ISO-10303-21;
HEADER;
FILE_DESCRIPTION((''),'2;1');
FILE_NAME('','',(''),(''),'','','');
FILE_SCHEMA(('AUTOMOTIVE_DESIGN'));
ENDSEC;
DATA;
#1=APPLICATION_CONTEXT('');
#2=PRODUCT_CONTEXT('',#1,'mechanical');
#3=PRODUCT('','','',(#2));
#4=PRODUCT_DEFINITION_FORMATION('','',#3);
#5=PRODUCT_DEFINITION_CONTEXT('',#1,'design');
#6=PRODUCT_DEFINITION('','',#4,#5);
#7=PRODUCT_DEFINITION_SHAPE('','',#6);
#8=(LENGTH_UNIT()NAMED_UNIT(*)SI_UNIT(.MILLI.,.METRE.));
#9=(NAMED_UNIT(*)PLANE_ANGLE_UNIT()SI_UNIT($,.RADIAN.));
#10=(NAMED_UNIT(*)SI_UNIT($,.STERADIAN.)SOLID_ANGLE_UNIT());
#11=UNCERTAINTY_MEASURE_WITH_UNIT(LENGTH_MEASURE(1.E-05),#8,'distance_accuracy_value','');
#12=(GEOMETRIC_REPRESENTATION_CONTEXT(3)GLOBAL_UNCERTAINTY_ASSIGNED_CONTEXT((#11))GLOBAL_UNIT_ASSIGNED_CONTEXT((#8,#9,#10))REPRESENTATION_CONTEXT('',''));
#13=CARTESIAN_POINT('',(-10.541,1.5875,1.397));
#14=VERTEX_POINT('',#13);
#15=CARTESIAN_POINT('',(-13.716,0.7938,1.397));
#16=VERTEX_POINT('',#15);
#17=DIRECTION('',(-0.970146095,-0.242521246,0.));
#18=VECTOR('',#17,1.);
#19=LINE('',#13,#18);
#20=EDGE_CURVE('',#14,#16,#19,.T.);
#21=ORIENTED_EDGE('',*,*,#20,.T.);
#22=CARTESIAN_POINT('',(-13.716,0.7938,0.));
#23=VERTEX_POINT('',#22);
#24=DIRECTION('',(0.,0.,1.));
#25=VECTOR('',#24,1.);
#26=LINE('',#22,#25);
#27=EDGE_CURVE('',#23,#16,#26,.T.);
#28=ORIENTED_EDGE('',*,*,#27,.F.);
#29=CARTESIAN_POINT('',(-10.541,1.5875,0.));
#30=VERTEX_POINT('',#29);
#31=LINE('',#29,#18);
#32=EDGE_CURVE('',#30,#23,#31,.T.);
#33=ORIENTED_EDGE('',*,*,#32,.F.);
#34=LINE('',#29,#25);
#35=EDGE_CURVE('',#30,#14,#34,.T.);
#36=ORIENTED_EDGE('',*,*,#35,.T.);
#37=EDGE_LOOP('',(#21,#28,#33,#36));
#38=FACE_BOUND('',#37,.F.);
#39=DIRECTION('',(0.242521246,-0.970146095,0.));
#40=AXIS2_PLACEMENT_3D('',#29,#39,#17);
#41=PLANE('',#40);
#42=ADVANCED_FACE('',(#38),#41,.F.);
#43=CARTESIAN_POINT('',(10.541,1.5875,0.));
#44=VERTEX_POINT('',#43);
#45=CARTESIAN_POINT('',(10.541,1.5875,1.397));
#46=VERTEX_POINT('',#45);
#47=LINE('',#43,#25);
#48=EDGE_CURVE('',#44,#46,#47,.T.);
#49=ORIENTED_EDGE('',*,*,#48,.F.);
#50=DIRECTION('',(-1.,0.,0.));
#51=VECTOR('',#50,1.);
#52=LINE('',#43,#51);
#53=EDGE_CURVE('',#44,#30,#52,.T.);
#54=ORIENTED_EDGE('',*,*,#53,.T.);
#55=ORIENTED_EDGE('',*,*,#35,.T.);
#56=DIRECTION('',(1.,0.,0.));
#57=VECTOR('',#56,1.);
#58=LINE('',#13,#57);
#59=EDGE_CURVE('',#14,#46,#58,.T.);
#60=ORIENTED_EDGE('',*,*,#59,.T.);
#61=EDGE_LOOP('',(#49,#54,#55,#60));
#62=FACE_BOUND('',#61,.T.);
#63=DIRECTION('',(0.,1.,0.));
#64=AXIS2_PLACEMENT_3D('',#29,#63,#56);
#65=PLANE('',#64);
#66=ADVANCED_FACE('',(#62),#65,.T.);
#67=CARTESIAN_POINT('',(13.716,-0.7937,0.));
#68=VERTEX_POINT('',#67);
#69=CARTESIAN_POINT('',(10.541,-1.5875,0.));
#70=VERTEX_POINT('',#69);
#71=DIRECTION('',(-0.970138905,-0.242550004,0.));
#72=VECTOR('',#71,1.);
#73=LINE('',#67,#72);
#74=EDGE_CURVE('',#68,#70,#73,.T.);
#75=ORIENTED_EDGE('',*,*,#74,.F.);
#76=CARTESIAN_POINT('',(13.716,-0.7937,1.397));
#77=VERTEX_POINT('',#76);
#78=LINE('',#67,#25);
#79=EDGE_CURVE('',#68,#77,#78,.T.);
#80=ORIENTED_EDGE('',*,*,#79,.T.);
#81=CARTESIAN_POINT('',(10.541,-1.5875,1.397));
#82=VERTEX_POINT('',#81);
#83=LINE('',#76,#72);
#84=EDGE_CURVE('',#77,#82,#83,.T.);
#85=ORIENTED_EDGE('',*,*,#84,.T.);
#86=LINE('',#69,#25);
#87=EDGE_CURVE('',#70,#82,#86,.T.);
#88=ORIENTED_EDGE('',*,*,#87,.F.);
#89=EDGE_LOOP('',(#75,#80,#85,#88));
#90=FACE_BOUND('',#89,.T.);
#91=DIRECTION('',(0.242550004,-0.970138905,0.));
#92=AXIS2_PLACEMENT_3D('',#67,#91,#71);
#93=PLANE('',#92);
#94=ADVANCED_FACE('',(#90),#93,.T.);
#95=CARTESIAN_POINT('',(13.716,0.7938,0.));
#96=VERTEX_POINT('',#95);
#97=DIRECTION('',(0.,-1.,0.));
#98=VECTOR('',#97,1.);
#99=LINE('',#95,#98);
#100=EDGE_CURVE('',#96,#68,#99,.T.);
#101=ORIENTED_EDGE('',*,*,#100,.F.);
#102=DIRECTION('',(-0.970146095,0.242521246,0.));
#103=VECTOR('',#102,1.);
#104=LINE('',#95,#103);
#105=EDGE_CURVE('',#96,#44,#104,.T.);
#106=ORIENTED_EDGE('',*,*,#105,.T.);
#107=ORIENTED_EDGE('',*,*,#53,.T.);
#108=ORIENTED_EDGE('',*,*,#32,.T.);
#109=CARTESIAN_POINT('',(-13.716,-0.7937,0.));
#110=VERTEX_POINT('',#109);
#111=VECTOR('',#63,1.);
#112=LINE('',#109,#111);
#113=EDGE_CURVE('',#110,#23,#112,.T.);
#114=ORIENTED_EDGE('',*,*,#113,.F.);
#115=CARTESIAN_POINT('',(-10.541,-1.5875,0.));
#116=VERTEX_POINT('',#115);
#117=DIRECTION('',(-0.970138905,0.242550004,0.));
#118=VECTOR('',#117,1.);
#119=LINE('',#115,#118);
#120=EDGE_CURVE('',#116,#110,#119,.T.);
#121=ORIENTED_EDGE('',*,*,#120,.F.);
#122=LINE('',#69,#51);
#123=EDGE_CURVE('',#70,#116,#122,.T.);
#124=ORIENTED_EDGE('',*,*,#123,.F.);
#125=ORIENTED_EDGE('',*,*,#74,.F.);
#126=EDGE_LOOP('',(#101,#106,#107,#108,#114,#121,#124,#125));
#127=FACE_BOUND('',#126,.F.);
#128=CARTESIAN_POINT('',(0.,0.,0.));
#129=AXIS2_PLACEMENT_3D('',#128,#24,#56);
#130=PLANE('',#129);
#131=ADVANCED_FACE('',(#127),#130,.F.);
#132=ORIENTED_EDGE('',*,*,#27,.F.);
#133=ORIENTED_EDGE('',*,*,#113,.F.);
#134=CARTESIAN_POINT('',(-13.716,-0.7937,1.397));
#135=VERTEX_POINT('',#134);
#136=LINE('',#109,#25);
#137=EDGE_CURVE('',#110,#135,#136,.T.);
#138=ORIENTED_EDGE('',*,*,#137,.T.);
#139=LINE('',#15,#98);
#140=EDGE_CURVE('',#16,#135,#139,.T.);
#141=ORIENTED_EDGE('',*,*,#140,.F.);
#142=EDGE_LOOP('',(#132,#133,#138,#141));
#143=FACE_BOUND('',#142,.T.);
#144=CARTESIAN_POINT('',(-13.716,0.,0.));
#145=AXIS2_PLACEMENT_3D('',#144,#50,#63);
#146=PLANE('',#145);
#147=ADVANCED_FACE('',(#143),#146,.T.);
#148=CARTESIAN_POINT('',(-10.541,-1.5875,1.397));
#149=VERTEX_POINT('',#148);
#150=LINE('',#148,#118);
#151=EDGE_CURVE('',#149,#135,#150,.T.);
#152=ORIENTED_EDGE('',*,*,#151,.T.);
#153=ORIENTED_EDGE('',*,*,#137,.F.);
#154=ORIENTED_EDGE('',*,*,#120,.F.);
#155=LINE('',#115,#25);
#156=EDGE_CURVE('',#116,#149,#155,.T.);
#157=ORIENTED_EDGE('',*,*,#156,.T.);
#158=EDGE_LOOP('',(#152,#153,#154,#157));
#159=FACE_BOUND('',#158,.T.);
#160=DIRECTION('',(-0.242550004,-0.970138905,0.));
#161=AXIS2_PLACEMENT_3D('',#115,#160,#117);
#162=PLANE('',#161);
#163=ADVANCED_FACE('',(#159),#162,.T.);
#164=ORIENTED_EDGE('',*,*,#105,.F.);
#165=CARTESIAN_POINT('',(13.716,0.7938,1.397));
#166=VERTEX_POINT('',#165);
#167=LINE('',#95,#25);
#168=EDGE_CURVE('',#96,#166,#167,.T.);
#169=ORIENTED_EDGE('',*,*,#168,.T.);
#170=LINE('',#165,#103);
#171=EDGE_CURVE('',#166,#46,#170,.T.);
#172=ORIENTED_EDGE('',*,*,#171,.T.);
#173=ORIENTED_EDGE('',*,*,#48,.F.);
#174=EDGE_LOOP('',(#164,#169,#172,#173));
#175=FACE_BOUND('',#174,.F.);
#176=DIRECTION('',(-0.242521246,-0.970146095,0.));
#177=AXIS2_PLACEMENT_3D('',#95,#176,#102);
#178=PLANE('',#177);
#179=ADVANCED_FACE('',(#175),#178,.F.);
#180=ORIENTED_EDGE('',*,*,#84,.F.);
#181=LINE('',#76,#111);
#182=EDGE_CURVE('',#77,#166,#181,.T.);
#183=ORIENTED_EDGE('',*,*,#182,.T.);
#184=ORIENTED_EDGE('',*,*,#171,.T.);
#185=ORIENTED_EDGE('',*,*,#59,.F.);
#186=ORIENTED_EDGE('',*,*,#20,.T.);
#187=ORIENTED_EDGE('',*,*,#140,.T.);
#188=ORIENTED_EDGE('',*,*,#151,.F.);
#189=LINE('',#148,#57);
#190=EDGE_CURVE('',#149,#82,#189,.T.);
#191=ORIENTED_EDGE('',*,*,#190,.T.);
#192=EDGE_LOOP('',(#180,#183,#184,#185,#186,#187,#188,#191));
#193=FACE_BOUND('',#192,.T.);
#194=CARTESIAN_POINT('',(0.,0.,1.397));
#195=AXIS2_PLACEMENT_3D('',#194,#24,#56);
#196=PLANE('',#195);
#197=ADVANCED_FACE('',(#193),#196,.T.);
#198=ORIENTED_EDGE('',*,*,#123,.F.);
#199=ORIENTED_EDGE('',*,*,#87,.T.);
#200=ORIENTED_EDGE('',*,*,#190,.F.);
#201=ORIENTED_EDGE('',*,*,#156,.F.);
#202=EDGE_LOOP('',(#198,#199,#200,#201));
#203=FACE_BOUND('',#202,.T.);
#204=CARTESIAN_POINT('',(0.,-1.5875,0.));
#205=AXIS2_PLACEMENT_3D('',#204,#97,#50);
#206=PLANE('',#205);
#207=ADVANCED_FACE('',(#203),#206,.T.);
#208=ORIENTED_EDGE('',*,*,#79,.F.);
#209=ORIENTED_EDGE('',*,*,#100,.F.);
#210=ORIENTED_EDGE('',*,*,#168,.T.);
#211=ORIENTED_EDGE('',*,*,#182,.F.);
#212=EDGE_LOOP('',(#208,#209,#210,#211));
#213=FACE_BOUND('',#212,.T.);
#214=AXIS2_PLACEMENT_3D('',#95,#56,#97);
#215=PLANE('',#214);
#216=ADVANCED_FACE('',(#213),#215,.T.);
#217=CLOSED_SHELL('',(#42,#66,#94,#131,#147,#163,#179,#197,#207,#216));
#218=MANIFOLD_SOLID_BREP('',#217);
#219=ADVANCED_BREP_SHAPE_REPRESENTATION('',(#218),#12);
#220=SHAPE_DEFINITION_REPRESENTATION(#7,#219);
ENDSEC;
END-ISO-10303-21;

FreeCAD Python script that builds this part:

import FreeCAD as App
import Part
import Sketcher

V = App.Vector
Q = App.Units.Quantity


def add_polygon(sketch, points):
    """Adds a closed chain of lines whose ends are joined by coincident constraints."""
    first, n = sketch.GeometryCount, len(points)
    for a, b in zip(points, points[1:] + points[:1]):
        sketch.addGeometry(Part.LineSegment(App.Vector(*a, 0), App.Vector(*b, 0)), False)
    for i in range(n):
        sketch.addConstraint(Sketcher.Constraint("Coincident", first + i, 2, first + (i + 1) % n, 1))

doc = App.newDocument("Part")
body = doc.addObject("PartDesign::Body", "Body")

# Sketch on XY plane
sketch1 = body.newObject("Sketcher::SketchObject", "Sketch")
sketch1.AttachmentSupport = (doc.getObject("XY_Plane"), [""])
sketch1.MapMode = "FlatFace"
add_polygon(sketch1, [(-10.5, 1.6), (-13.7, 0.8), (-13.7, -0.8), (-10.5, -1.6), (10.5, -1.6), (13.7, -0.8), (13.7, 0.8), (10.5, 1.6)])  # lines 0-7
sketch1.addConstraint([
    Sketcher.Constraint("Vertical", 1),
    Sketcher.Constraint("Horizontal", 3),
    Sketcher.Constraint("Vertical", 5),
    Sketcher.Constraint("Horizontal", 7),
    Sketcher.Constraint("Symmetric", 0, 2, 4, 2, -1, 1),
    Sketcher.Constraint("Symmetric", 2, 2, 6, 2, -1, 1),
    Sketcher.Constraint("Parallel", 0, 4),
    Sketcher.Constraint("Parallel", 2, 6),
    Sketcher.Constraint("Horizontal", 1, 2, 4, 2),
    Sketcher.Constraint("Vertical", 3, 2, 6, 2),
    Sketcher.Constraint("DistanceY", 1, 2, 1, 1, Q("0.0625 in")),
    Sketcher.Constraint("DistanceX", 0, 2, -1, 1, Q("0.54 in")),
    Sketcher.Constraint("DistanceY", 2, 2, -1, 1, Q("0.0625 in")),
    Sketcher.Constraint("DistanceX", 1, 2, 2, 2, Q("0.125 in")),
])
pad1 = body.newObject("PartDesign::Pad", "Pad")
pad1.Profile = sketch1
pad1.Length = Q("0.055 in")

doc.recompute()
